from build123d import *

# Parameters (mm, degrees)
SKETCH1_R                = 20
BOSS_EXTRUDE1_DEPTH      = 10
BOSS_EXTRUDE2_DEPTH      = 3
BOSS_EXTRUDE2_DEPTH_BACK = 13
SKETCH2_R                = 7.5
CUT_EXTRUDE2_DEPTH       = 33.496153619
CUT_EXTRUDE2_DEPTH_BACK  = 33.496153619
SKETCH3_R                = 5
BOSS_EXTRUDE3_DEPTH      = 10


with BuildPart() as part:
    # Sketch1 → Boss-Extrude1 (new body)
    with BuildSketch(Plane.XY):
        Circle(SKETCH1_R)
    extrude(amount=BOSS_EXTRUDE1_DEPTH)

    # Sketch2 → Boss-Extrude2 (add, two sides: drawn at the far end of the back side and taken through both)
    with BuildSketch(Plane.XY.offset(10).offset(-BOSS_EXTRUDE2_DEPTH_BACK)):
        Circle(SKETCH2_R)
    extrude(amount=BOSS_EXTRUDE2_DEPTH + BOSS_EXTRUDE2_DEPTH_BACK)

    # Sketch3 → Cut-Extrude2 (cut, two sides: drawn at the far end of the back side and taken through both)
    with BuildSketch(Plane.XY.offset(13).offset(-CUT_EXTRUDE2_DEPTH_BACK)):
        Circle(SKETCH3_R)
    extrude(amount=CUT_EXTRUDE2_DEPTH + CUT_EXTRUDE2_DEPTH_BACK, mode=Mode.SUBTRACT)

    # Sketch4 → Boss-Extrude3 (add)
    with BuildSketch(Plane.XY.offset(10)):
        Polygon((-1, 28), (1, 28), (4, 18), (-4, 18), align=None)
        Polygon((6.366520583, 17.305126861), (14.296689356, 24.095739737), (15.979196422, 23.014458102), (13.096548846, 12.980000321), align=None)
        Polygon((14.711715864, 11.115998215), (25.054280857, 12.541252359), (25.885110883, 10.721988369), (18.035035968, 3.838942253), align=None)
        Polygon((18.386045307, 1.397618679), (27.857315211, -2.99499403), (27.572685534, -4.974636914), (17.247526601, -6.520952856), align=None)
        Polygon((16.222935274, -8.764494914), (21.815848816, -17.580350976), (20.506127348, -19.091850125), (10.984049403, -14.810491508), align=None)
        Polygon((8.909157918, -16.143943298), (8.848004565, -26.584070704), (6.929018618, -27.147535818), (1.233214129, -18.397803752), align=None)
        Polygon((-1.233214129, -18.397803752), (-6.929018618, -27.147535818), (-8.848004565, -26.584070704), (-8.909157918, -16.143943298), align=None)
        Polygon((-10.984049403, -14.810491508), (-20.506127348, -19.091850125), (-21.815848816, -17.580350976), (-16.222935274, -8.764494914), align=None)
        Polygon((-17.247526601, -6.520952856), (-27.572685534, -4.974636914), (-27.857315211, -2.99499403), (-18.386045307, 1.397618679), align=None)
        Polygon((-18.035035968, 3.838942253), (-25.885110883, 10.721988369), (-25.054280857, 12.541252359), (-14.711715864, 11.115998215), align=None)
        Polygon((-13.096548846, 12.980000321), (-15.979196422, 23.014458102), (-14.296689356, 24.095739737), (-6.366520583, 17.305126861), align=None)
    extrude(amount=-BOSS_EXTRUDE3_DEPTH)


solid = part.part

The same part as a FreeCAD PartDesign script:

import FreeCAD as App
import Part
import Sketcher
from FreeCAD import Vector
Q = App.Units.Quantity

doc = App.newDocument("Part")
params = doc.addObject("Spreadsheet::Sheet", "Params")
for row, (alias, value) in enumerate([
    ("sketch1_diameter", "40 mm"),
    ("pad1_length", "10 mm"),
    ("sketch2_diameter", "15 mm"),
    ("pad2_length", "3 mm"),
    ("pad2_length2", "13 mm"),
    ("sketch3_diameter", "10 mm"),
    ("sketch4_width", "2 mm"),
    ("sketch4_width2", "8 mm"),
    ("sketch4_length", "8 mm"),
    ("sketch4_length2", "2 mm"),
    ("pad3_length", "10 mm"),
], start=1):
    params.set(f"A{row}", alias)
    params.set(f"B{row}", "=" + value)
    params.setAlias(f"B{row}", alias)

body = doc.addObject("PartDesign::Body", "Body")

# Sketch on XY plane
sketch1 = body.newObject("Sketcher::SketchObject", "Sketch")
sketch1.AttachmentSupport = (doc.getObject("XY_Plane"), [""])
sketch1.MapMode = "FlatFace"
sketch1.addGeometry(Part.Circle(Vector(0, 0, 0), Vector(0, 0, 1), 20), False)
sketch1.addConstraint([
    Sketcher.Constraint("Coincident", 0, 3, -1, 1),
    Sketcher.Constraint("Diameter", 0, Q("40 mm")),
])
sketch1.setExpression("Constraints[1]", "Params.sketch1_diameter")
pad1 = body.newObject("PartDesign::Pad", "Pad")
pad1.Profile = sketch1
pad1.setExpression("Length", "Params.pad1_length")

# Sketch on XY plane
sketch2 = body.newObject("Sketcher::SketchObject", "Sketch001")
sketch2.AttachmentSupport = (doc.getObject("XY_Plane"), [""])
sketch2.MapMode = "FlatFace"
sketch2.AttachmentOffset = App.Placement(Vector(0, 0, 10), App.Rotation())
sketch2.addGeometry(Part.Circle(Vector(0, 0, 0), Vector(0, 0, 1), 7.5), False)
sketch2.addConstraint([
    Sketcher.Constraint("Coincident", 0, 3, -1, 1),
    Sketcher.Constraint("Diameter", 0, Q("15 mm")),
])
sketch2.setExpression("Constraints[1]", "Params.sketch2_diameter")
pad2 = body.newObject("PartDesign::Pad", "Pad001")
pad2.Profile = sketch2
pad2.Type = "TwoLengths"
pad2.setExpression("Length", "Params.pad2_length")
pad2.setExpression("Length2", "Params.pad2_length2")

# Sketch on XY plane
sketch3 = body.newObject("Sketcher::SketchObject", "Sketch002")
sketch3.AttachmentSupport = (doc.getObject("XY_Plane"), [""])
sketch3.MapMode = "FlatFace"
sketch3.AttachmentOffset = App.Placement(Vector(0, 0, 13), App.Rotation())
sketch3.addGeometry(Part.Circle(Vector(0, 0, 0), Vector(0, 0, 1), 5), False)
sketch3.addConstraint([
    Sketcher.Constraint("Coincident", 0, 3, -1, 1),
    Sketcher.Constraint("Diameter", 0, Q("10 mm")),
])
sketch3.setExpression("Constraints[1]", "Params.sketch3_diameter")
pocket1 = body.newObject("PartDesign::Pocket", "Pocket")
pocket1.Profile = sketch3
pocket1.Type = "ThroughAll"
pocket1.Midplane = True

# Sketch on XY plane
sketch4 = body.newObject("Sketcher::SketchObject", "Sketch003")
sketch4.AttachmentSupport = (doc.getObject("XY_Plane"), [""])
sketch4.MapMode = "FlatFace"
sketch4.AttachmentOffset = App.Placement(Vector(0, 0, 10), App.Rotation())
sketch4.addGeometry([
    Part.LineSegment(Vector(1, 28, 0), Vector(-1, 28, 0)),  # 0
    Part.LineSegment(Vector(-1, 28, 0), Vector(-4, 18, 0)),  # 1
    Part.LineSegment(Vector(-4, 18, 0), Vector(4, 18, 0)),  # 2
    Part.LineSegment(Vector(4, 18, 0), Vector(1, 28, 0)),  # 3
    Part.LineSegment(Vector(14.296689, 24.09574, 0), Vector(6.366521, 17.305127, 0)),  # 4
    Part.LineSegment(Vector(6.366521, 17.305127, 0), Vector(13.096549, 12.98, 0)),  # 5
    Part.LineSegment(Vector(13.096549, 12.98, 0), Vector(15.979196, 23.014458, 0)),  # 6
    Part.LineSegment(Vector(15.979196, 23.014458, 0), Vector(14.296689, 24.09574, 0)),  # 7
    Part.LineSegment(Vector(25.054281, 12.541252, 0), Vector(14.711716, 11.115998, 0)),  # 8
    Part.LineSegment(Vector(14.711716, 11.115998, 0), Vector(18.035036, 3.838942, 0)),  # 9
    Part.LineSegment(Vector(18.035036, 3.838942, 0), Vector(25.885111, 10.721988, 0)),  # 10
    Part.LineSegment(Vector(25.885111, 10.721988, 0), Vector(25.054281, 12.541252, 0)),  # 11
    Part.LineSegment(Vector(27.857315, -2.994994, 0), Vector(18.386045, 1.397619, 0)),  # 12
    Part.LineSegment(Vector(18.386045, 1.397619, 0), Vector(17.247527, -6.520953, 0)),  # 13
    Part.LineSegment(Vector(17.247527, -6.520953, 0), Vector(27.572686, -4.974637, 0)),  # 14
    Part.LineSegment(Vector(27.572686, -4.974637, 0), Vector(27.857315, -2.994994, 0)),  # 15
    Part.LineSegment(Vector(21.815849, -17.580351, 0), Vector(16.222935, -8.764495, 0)),  # 16
    Part.LineSegment(Vector(16.222935, -8.764495, 0), Vector(10.984049, -14.810492, 0)),  # 17
    Part.LineSegment(Vector(10.984049, -14.810492, 0), Vector(20.506127, -19.09185, 0)),  # 18
    Part.LineSegment(Vector(20.506127, -19.09185, 0), Vector(21.815849, -17.580351, 0)),  # 19
    Part.LineSegment(Vector(8.848005, -26.584071, 0), Vector(8.909158, -16.143943, 0)),  # 20
    Part.LineSegment(Vector(8.909158, -16.143943, 0), Vector(1.233214, -18.397804, 0)),  # 21
    Part.LineSegment(Vector(1.233214, -18.397804, 0), Vector(6.929019, -27.147536, 0)),  # 22
    Part.LineSegment(Vector(6.929019, -27.147536, 0), Vector(8.848005, -26.584071, 0)),  # 23
    Part.LineSegment(Vector(-6.929019, -27.147536, 0), Vector(-1.233214, -18.397804, 0)),  # 24
    Part.LineSegment(Vector(-1.233214, -18.397804, 0), Vector(-8.909158, -16.143943, 0)),  # 25
    Part.LineSegment(Vector(-8.909158, -16.143943, 0), Vector(-8.848005, -26.584071, 0)),  # 26
    Part.LineSegment(Vector(-8.848005, -26.584071, 0), Vector(-6.929019, -27.147536, 0)),  # 27
    Part.LineSegment(Vector(-20.506127, -19.09185, 0), Vector(-10.984049, -14.810492, 0)),  # 28
    Part.LineSegment(Vector(-10.984049, -14.810492, 0), Vector(-16.222935, -8.764495, 0)),  # 29
    Part.LineSegment(Vector(-16.222935, -8.764495, 0), Vector(-21.815849, -17.580351, 0)),  # 30
    Part.LineSegment(Vector(-21.815849, -17.580351, 0), Vector(-20.506127, -19.09185, 0)),  # 31
    Part.LineSegment(Vector(-27.572686, -4.974637, 0), Vector(-17.247527, -6.520953, 0)),  # 32
    Part.LineSegment(Vector(-17.247527, -6.520953, 0), Vector(-18.386045, 1.397619, 0)),  # 33
    Part.LineSegment(Vector(-18.386045, 1.397619, 0), Vector(-27.857315, -2.994994, 0)),  # 34
    Part.LineSegment(Vector(-27.857315, -2.994994, 0), Vector(-27.572686, -4.974637, 0)),  # 35
    Part.LineSegment(Vector(-25.885111, 10.721988, 0), Vector(-18.035036, 3.838942, 0)),  # 36
    Part.LineSegment(Vector(-18.035036, 3.838942, 0), Vector(-14.711716, 11.115998, 0)),  # 37
    Part.LineSegment(Vector(-14.711716, 11.115998, 0), Vector(-25.054281, 12.541252, 0)),  # 38
    Part.LineSegment(Vector(-25.054281, 12.541252, 0), Vector(-25.885111, 10.721988, 0)),  # 39
    Part.LineSegment(Vector(-15.979196, 23.014458, 0), Vector(-13.096549, 12.98, 0)),  # 40
    Part.LineSegment(Vector(-13.096549, 12.98, 0), Vector(-6.366521, 17.305127, 0)),  # 41
    Part.LineSegment(Vector(-6.366521, 17.305127, 0), Vector(-14.296689, 24.09574, 0)),  # 42
    Part.LineSegment(Vector(-14.296689, 24.09574, 0), Vector(-15.979196, 23.014458, 0)),  # 43
], False)
sketch4.addConstraint([
    Sketcher.Constraint("Coincident", 0, 2, 1, 1),
    Sketcher.Constraint("Coincident", 1, 2, 2, 1),
    Sketcher.Constraint("Coincident", 2, 2, 3, 1),
    Sketcher.Constraint("Coincident", 3, 2, 0, 1),
    Sketcher.Constraint("Coincident", 4, 2, 5, 1),
    Sketcher.Constraint("Coincident", 5, 2, 6, 1),
    Sketcher.Constraint("Coincident", 6, 2, 7, 1),
    Sketcher.Constraint("Coincident", 7, 2, 4, 1),
    Sketcher.Constraint("Coincident", 8, 2, 9, 1),
    Sketcher.Constraint("Coincident", 9, 2, 10, 1),
    Sketcher.Constraint("Coincident", 10, 2, 11, 1),
    Sketcher.Constraint("Coincident", 11, 2, 8, 1),
    Sketcher.Constraint("Coincident", 12, 2, 13, 1),
    Sketcher.Constraint("Coincident", 13, 2, 14, 1),
    Sketcher.Constraint("Coincident", 14, 2, 15, 1),
    Sketcher.Constraint("Coincident", 15, 2, 12, 1),
    Sketcher.Constraint("Coincident", 16, 2, 17, 1),
    Sketcher.Constraint("Coincident", 17, 2, 18, 1),
    Sketcher.Constraint("Coincident", 18, 2, 19, 1),
    Sketcher.Constraint("Coincident", 19, 2, 16, 1),
    Sketcher.Constraint("Coincident", 20, 2, 21, 1),
    Sketcher.Constraint("Coincident", 21, 2, 22, 1),
    Sketcher.Constraint("Coincident", 22, 2, 23, 1),
    Sketcher.Constraint("Coincident", 23, 2, 20, 1),
    Sketcher.Constraint("Coincident", 24, 2, 25, 1),
    Sketcher.Constraint("Coincident", 25, 2, 26, 1),
    Sketcher.Constraint("Coincident", 26, 2, 27, 1),
    Sketcher.Constraint("Coincident", 27, 2, 24, 1),
    Sketcher.Constraint("Coincident", 28, 2, 29, 1),
    Sketcher.Constraint("Coincident", 29, 2, 30, 1),
    Sketcher.Constraint("Coincident", 30, 2, 31, 1),
    Sketcher.Constraint("Coincident", 31, 2, 28, 1),
    Sketcher.Constraint("Coincident", 32, 2, 33, 1),
    Sketcher.Constraint("Coincident", 33, 2, 34, 1),
    Sketcher.Constraint("Coincident", 34, 2, 35, 1),
    Sketcher.Constraint("Coincident", 35, 2, 32, 1),
    Sketcher.Constraint("Coincident", 36, 2, 37, 1),
    Sketcher.Constraint("Coincident", 37, 2, 38, 1),
    Sketcher.Constraint("Coincident", 38, 2, 39, 1),
    Sketcher.Constraint("Coincident", 39, 2, 36, 1),
    Sketcher.Constraint("Coincident", 40, 2, 41, 1),
    Sketcher.Constraint("Coincident", 41, 2, 42, 1),
    Sketcher.Constraint("Coincident", 42, 2, 43, 1),
    Sketcher.Constraint("Coincident", 43, 2, 40, 1),
    Sketcher.Constraint("Horizontal", 0),
    Sketcher.Constraint("Horizontal", 2),
    Sketcher.Constraint("Symmetric", 21, 2, 24, 2, -2),
    Sketcher.Constraint("Symmetric", 20, 2, 25, 2, -2),
    Sketcher.Constraint("Symmetric", 23, 2, 26, 2, -2),
    Sketcher.Constraint("Symmetric", 22, 2, 27, 2, -2),
    Sketcher.Constraint("Symmetric", 17, 2, 28, 2, -2),
    Sketcher.Constraint("Symmetric", 16, 2, 29, 2, -2),
    Sketcher.Constraint("Symmetric", 19, 2, 30, 2, -2),
    Sketcher.Constraint("Symmetric", 18, 2, 31, 2, -2),
    Sketcher.Constraint("Symmetric", 13, 2, 32, 2, -2),
    Sketcher.Constraint("Symmetric", 12, 2, 33, 2, -2),
    Sketcher.Constraint("Symmetric", 15, 2, 34, 2, -2),
    Sketcher.Constraint("Symmetric", 14, 2, 35, 2, -2),
    Sketcher.Constraint("Symmetric", 9, 2, 36, 2, -2),
    Sketcher.Constraint("Symmetric", 8, 2, 37, 2, -2),
    Sketcher.Constraint("Symmetric", 11, 2, 38, 2, -2),
    Sketcher.Constraint("Symmetric", 10, 2, 39, 2, -2),
    Sketcher.Constraint("Symmetric", 5, 2, 40, 2, -2),
    Sketcher.Constraint("Symmetric", 4, 2, 41, 2, -2),
    Sketcher.Constraint("Symmetric", 7, 2, 42, 2, -2),
    Sketcher.Constraint("Symmetric", 6, 2, 43, 2, -2),
    Sketcher.Constraint("Parallel", 5, 7),
    Sketcher.Constraint("Parallel", 9, 11),
    Sketcher.Constraint("Parallel", 13, 15),
    Sketcher.Constraint("Parallel", 17, 19),
    Sketcher.Constraint("Parallel", 21, 23),
    Sketcher.Constraint("Equal", 1, 3),
    Sketcher.Constraint("Equal", 3, 4),
    Sketcher.Constraint("Equal", 4, 6),
    Sketcher.Constraint("Equal", 6, 8),
    Sketcher.Constraint("Equal", 5, 9),
    Sketcher.Constraint("Equal", 8, 10),
    Sketcher.Constraint("Equal", 7, 11),
    Sketcher.Constraint("Equal", 10, 12),
    Sketcher.Constraint("Equal", 9, 13),
    Sketcher.Constraint("Equal", 12, 14),
    Sketcher.Constraint("Equal", 11, 15),
    Sketcher.Constraint("Equal", 14, 16),
    Sketcher.Constraint("Equal", 13, 17),
    Sketcher.Constraint("Equal", 16, 18),
    Sketcher.Constraint("Equal", 15, 19),
    Sketcher.Constraint("Equal", 18, 20),
    Sketcher.Constraint("Equal", 17, 21),
    Sketcher.Constraint("Equal", 20, 22),
    Sketcher.Constraint("Equal", 19, 23),
    Sketcher.Constraint("DistanceX", 0, 2, 0, 1, Q("2 mm")),
    Sketcher.Constraint("DistanceX", 2, 1, 2, 2, Q("8 mm")),
    Sketcher.Constraint("Distance", 5, Q("8 mm")),
    Sketcher.Constraint("Distance", 7, Q("2 mm")),
    Sketcher.Constraint("DistanceX", 0, 2, -1, 1, Q("1 mm")),
    Sketcher.Constraint("DistanceY", -1, 1, 0, 2, Q("28 mm")),
    Sketcher.Constraint("DistanceY", -1, 1, 1, 2, Q("18 mm")),
    Sketcher.Constraint("DistanceY", -1, 1, 5, 2, Q("12.98 mm")),
    Sketcher.Constraint("DistanceY", -1, 1, 8, 2, Q("11.115998 mm")),
    Sketcher.Constraint("DistanceX", 16, 2, 9, 2, Q("1.812101 mm")),
    Sketcher.Constraint("DistanceY", 16, 2, 15, 2, Q("5.769501 mm")),
    Sketcher.Constraint("DistanceX", 13, 2, 18, 2, Q("3.258601 mm")),
    Sketcher.Constraint("DistanceY", 18, 2, 19, 2, Q("1.511499 mm")),
    Sketcher.Constraint("DistanceY", 19, 2, 13, 2, Q("11.059398 mm")),
    Sketcher.Constraint("DistanceX", 34, 2, 37, 2, Q("13.145599 mm")),
    Sketcher.Constraint("DistanceX", -1, 1, 4, 2, Q("6.366521 mm")),
    Sketcher.Constraint("DistanceX", -1, 1, 5, 2, Q("13.096549 mm")),
    Sketcher.Constraint("DistanceX", -1, 1, 10, 2, Q("25.885111 mm")),
    Sketcher.Constraint("DistanceY", -1, 1, 12, 2, Q("1.397619 mm")),
    Sketcher.Constraint("DistanceX", -1, 1, 22, 2, Q("6.929019 mm")),
    Sketcher.Constraint("DistanceY", 23, 2, -1, 1, Q("26.584071 mm")),
    Sketcher.Constraint("DistanceX", 20, 2, 17, 2, Q("2.074891 mm")),
])
sketch4.setExpression("Constraints[90]", "Params.sketch4_width")
sketch4.setExpression("Constraints[91]", "Params.sketch4_width2")
sketch4.setExpression("Constraints[92]", "Params.sketch4_length")
sketch4.setExpression("Constraints[93]", "Params.sketch4_length2")
pad3 = body.newObject("PartDesign::Pad", "Pad002")
pad3.Profile = sketch4
pad3.setExpression("Length", "Params.pad3_length")
pad3.Reversed = True

doc.recompute()
